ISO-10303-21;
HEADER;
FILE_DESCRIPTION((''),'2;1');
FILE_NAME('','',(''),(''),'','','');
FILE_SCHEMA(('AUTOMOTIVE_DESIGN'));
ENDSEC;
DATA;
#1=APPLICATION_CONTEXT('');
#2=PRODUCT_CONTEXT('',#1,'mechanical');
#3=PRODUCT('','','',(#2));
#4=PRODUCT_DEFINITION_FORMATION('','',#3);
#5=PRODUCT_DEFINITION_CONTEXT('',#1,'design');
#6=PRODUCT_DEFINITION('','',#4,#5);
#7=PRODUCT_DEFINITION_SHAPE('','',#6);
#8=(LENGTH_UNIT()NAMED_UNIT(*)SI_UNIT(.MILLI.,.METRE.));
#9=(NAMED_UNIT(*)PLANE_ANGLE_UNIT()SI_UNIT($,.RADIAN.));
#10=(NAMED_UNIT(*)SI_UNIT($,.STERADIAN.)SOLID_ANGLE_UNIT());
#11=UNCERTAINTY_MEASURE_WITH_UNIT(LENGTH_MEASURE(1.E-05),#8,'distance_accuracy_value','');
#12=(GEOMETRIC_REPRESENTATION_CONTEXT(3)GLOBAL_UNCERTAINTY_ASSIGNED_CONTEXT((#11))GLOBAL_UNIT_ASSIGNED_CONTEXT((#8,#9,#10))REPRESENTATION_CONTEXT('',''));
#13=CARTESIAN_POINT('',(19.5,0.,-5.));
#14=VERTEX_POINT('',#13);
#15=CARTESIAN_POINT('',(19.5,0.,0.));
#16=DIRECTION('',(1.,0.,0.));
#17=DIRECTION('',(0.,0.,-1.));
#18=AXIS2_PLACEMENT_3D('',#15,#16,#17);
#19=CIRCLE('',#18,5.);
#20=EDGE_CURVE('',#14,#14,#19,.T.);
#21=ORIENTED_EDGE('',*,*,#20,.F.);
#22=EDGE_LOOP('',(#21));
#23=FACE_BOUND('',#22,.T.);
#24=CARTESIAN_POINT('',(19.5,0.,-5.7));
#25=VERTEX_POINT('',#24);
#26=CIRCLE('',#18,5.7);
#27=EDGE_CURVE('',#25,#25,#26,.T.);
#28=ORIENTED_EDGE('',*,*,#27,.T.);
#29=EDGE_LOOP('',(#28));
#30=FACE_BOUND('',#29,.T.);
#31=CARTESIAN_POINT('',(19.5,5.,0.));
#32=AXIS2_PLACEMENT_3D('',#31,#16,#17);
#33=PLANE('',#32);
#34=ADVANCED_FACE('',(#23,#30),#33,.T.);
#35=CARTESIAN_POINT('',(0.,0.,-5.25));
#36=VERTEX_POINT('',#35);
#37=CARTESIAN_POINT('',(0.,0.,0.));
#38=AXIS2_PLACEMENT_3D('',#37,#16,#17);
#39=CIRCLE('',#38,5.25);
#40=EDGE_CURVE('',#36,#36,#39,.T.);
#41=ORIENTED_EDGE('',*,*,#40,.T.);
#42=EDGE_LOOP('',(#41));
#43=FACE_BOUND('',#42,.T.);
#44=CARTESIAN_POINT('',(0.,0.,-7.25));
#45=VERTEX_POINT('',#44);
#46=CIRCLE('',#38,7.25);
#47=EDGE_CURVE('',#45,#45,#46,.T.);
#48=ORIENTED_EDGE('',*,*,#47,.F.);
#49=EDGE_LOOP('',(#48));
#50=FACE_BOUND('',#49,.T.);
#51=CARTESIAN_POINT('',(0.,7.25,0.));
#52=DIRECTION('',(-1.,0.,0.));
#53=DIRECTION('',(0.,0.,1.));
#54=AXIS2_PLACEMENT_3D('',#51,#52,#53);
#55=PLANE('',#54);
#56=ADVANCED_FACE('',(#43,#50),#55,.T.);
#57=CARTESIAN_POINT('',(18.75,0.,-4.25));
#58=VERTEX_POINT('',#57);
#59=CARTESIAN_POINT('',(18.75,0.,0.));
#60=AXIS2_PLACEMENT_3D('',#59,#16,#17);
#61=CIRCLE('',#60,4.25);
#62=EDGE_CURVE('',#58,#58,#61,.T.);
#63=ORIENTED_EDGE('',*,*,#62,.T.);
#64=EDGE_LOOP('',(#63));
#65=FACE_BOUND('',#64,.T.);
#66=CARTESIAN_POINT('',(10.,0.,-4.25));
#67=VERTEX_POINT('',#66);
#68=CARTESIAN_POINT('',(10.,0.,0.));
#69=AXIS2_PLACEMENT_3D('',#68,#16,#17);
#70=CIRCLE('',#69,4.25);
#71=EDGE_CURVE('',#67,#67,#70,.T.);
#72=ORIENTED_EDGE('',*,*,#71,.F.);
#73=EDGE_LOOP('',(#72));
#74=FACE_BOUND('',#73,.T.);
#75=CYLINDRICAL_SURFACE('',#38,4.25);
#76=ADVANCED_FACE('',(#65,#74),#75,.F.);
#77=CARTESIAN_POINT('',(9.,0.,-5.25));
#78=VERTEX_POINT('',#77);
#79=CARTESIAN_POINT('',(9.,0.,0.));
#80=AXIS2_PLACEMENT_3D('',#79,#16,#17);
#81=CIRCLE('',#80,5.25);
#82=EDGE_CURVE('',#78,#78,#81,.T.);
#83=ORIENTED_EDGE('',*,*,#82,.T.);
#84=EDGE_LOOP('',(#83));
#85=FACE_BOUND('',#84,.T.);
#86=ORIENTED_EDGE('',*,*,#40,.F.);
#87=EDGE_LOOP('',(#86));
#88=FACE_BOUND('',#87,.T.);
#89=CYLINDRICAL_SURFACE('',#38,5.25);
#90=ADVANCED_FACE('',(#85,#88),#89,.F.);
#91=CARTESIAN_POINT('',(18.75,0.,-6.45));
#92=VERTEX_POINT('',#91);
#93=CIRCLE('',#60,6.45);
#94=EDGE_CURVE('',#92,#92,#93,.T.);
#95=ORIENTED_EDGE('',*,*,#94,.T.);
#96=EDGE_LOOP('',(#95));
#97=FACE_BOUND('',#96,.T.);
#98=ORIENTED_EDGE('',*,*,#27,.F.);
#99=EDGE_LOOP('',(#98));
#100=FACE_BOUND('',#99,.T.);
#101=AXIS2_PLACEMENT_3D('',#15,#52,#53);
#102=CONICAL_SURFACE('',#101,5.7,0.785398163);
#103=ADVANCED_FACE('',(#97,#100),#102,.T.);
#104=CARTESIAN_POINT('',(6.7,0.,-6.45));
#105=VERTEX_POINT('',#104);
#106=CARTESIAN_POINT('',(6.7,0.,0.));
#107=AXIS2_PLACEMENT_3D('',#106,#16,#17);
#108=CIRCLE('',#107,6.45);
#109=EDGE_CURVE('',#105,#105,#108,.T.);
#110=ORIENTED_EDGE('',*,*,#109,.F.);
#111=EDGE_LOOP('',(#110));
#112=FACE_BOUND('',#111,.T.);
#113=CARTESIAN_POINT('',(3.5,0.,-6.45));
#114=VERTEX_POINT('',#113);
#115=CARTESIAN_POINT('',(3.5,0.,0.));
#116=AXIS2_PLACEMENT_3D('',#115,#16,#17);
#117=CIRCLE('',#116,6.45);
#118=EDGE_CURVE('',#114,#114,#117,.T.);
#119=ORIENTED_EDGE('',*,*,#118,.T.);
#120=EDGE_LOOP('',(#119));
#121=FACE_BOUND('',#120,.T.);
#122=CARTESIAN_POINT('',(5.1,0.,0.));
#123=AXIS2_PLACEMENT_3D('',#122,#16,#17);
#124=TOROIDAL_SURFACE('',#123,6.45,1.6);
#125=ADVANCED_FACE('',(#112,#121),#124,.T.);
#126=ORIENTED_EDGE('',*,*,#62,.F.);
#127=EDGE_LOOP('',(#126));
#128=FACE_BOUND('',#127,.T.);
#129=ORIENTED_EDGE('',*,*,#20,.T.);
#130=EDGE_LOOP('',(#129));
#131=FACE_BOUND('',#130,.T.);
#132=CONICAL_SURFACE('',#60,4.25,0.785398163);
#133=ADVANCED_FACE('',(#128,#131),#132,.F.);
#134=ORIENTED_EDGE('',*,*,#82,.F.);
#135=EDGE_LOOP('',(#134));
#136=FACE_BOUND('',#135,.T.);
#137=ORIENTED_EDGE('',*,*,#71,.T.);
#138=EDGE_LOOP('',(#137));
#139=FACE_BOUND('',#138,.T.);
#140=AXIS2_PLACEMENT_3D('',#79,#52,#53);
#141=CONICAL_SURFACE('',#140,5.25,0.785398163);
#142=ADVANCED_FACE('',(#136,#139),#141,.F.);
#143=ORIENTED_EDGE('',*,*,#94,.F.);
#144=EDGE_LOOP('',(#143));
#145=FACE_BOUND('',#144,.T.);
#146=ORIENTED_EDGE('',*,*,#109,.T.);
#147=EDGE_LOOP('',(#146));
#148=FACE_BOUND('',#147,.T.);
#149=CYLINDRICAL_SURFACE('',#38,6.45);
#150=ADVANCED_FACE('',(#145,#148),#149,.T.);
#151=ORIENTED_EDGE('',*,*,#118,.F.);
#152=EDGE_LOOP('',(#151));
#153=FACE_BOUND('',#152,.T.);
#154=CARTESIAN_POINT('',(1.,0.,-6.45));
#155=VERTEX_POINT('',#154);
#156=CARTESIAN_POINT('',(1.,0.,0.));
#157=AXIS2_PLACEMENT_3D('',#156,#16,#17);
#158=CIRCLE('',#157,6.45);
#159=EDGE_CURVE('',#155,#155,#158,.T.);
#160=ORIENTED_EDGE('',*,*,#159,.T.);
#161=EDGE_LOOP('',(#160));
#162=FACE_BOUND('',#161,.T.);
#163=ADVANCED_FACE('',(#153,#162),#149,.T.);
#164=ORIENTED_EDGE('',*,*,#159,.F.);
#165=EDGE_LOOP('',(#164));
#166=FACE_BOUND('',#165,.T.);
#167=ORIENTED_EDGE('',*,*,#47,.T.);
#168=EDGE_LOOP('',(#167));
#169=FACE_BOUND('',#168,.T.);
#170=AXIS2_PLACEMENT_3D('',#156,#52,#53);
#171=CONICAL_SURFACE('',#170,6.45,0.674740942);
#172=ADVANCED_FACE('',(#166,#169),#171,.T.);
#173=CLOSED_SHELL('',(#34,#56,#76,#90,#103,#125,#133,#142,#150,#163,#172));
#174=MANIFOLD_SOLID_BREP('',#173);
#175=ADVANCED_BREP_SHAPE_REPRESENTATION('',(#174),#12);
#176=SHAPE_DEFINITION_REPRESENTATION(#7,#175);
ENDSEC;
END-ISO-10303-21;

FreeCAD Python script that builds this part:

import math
import FreeCAD as App
import Part
import Sketcher

V = App.Vector
Q = App.Units.Quantity

doc = App.newDocument("Part")
body = doc.addObject("PartDesign::Body", "Body")

# Sketch on XY plane
sketch1 = body.newObject("Sketcher::SketchObject", "Sketch")
sketch1.AttachmentSupport = (doc.getObject("XY_Plane"), [""])
sketch1.MapMode = "FlatFace"
sketch1.addGeometry(Part.LineSegment(V(0, 7.2, 0), V(0, 5.2, 0)), False)
sketch1.addGeometry(Part.LineSegment(V(0, 5.2, 0), V(9, 5.2, 0)), False)
sketch1.addGeometry(Part.LineSegment(V(9, 5.2, 0), V(10, 4.2, 0)), False)
sketch1.addGeometry(Part.LineSegment(V(10, 4.2, 0), V(18.8, 4.2, 0)), False)
sketch1.addGeometry(Part.LineSegment(V(18.8, 4.2, 0), V(19.5, 5, 0)), False)
sketch1.addGeometry(Part.LineSegment(V(19.5, 5, 0), V(19.5, 5.7, 0)), False)
sketch1.addGeometry(Part.LineSegment(V(19.5, 5.7, 0), V(18.8, 6.5, 0)), False)
sketch1.addGeometry(Part.LineSegment(V(18.8, 6.5, 0), V(6.7, 6.5, 0)), False)
sketch1.addGeometry(Part.ArcOfCircle(Part.Circle(V(5.1, 6.5, 0), V(0, 0, 1), 1.6), math.radians(0), math.radians(180)), False)
sketch1.addGeometry(Part.LineSegment(V(3.5, 6.5, 0), V(1, 6.5, 0)), False)
sketch1.addGeometry(Part.LineSegment(V(1, 6.5, 0), V(0, 7.2, 0)), False)
sketch1.addConstraint(Sketcher.Constraint("Coincident", 0, 2, 1, 1))
sketch1.addConstraint(Sketcher.Constraint("Coincident", 1, 2, 2, 1))
sketch1.addConstraint(Sketcher.Constraint("Coincident", 2, 2, 3, 1))
sketch1.addConstraint(Sketcher.Constraint("Coincident", 3, 2, 4, 1))
sketch1.addConstraint(Sketcher.Constraint("Coincident", 4, 2, 5, 1))
sketch1.addConstraint(Sketcher.Constraint("Coincident", 5, 2, 6, 1))
sketch1.addConstraint(Sketcher.Constraint("Coincident", 6, 2, 7, 1))
sketch1.addConstraint(Sketcher.Constraint("Coincident", 7, 2, 8, 1))
sketch1.addConstraint(Sketcher.Constraint("Coincident", 8, 2, 9, 1))
sketch1.addConstraint(Sketcher.Constraint("Coincident", 9, 2, 10, 1))
sketch1.addConstraint(Sketcher.Constraint("Coincident", 10, 2, 0, 1))
sketch1.addConstraint(Sketcher.Constraint("Vertical", 0))
sketch1.addConstraint(Sketcher.Constraint("Horizontal", 1))
sketch1.addConstraint(Sketcher.Constraint("Horizontal", 3))
sketch1.addConstraint(Sketcher.Constraint("Vertical", 5))
sketch1.addConstraint(Sketcher.Constraint("Horizontal", 7))
sketch1.addConstraint(Sketcher.Constraint("Horizontal", 9))
sketch1.addConstraint(Sketcher.Constraint("PointOnObject", 0, 2, -2))
sketch1.addConstraint(Sketcher.Constraint("Perpendicular", 2, 4))
sketch1.addConstraint(Sketcher.Constraint("Perpendicular", 4, 6))
sketch1.addConstraint(Sketcher.Constraint("Horizontal", 8, 3, 6, 2))
sketch1.addConstraint(Sketcher.Constraint("Horizontal", 7, 2, 8, 2))
sketch1.addConstraint(Sketcher.Constraint("Vertical", 3, 2, 6, 2))
sketch1.addConstraint(Sketcher.Constraint("Equal", 4, 6))
sketch1.addConstraint(Sketcher.Constraint("Radius", 8, Q("1.6 mm")))
sketch1.addConstraint(Sketcher.Constraint("DistanceX", 1, 1, 1, 2, Q("9 mm")))
sketch1.addConstraint(Sketcher.Constraint("DistanceY", 0, 2, 0, 1, Q("2 mm")))
sketch1.addConstraint(Sketcher.Constraint("DistanceX", 9, 2, 9, 1, Q("2.5 mm")))
sketch1.addConstraint(Sketcher.Constraint("DistanceY", 5, 1, 5, 2, Q("0.7 mm")))
sketch1.addConstraint(Sketcher.Constraint("DistanceX", -1, 1, 2, 2, Q("10 mm")))
sketch1.addConstraint(Sketcher.Constraint("DistanceY", -1, 1, 4, 2, Q("5 mm")))
sketch1.addConstraint(Sketcher.Constraint("DistanceX", -1, 1, 9, 2, Q("1 mm")))
sketch1.addConstraint(Sketcher.Constraint("DistanceX", 3, 1, 3, 2, Q("8.75 mm")))
sketch1.addConstraint(Sketcher.Constraint("DistanceX", -1, 1, 4, 2, Q("19.5 mm")))
revolution = body.newObject("PartDesign::Revolution", "Revolution")
revolution.Profile = sketch1
revolution.ReferenceAxis = (sketch1, ["H_Axis"])
revolution.Angle = 360

doc.recompute()
